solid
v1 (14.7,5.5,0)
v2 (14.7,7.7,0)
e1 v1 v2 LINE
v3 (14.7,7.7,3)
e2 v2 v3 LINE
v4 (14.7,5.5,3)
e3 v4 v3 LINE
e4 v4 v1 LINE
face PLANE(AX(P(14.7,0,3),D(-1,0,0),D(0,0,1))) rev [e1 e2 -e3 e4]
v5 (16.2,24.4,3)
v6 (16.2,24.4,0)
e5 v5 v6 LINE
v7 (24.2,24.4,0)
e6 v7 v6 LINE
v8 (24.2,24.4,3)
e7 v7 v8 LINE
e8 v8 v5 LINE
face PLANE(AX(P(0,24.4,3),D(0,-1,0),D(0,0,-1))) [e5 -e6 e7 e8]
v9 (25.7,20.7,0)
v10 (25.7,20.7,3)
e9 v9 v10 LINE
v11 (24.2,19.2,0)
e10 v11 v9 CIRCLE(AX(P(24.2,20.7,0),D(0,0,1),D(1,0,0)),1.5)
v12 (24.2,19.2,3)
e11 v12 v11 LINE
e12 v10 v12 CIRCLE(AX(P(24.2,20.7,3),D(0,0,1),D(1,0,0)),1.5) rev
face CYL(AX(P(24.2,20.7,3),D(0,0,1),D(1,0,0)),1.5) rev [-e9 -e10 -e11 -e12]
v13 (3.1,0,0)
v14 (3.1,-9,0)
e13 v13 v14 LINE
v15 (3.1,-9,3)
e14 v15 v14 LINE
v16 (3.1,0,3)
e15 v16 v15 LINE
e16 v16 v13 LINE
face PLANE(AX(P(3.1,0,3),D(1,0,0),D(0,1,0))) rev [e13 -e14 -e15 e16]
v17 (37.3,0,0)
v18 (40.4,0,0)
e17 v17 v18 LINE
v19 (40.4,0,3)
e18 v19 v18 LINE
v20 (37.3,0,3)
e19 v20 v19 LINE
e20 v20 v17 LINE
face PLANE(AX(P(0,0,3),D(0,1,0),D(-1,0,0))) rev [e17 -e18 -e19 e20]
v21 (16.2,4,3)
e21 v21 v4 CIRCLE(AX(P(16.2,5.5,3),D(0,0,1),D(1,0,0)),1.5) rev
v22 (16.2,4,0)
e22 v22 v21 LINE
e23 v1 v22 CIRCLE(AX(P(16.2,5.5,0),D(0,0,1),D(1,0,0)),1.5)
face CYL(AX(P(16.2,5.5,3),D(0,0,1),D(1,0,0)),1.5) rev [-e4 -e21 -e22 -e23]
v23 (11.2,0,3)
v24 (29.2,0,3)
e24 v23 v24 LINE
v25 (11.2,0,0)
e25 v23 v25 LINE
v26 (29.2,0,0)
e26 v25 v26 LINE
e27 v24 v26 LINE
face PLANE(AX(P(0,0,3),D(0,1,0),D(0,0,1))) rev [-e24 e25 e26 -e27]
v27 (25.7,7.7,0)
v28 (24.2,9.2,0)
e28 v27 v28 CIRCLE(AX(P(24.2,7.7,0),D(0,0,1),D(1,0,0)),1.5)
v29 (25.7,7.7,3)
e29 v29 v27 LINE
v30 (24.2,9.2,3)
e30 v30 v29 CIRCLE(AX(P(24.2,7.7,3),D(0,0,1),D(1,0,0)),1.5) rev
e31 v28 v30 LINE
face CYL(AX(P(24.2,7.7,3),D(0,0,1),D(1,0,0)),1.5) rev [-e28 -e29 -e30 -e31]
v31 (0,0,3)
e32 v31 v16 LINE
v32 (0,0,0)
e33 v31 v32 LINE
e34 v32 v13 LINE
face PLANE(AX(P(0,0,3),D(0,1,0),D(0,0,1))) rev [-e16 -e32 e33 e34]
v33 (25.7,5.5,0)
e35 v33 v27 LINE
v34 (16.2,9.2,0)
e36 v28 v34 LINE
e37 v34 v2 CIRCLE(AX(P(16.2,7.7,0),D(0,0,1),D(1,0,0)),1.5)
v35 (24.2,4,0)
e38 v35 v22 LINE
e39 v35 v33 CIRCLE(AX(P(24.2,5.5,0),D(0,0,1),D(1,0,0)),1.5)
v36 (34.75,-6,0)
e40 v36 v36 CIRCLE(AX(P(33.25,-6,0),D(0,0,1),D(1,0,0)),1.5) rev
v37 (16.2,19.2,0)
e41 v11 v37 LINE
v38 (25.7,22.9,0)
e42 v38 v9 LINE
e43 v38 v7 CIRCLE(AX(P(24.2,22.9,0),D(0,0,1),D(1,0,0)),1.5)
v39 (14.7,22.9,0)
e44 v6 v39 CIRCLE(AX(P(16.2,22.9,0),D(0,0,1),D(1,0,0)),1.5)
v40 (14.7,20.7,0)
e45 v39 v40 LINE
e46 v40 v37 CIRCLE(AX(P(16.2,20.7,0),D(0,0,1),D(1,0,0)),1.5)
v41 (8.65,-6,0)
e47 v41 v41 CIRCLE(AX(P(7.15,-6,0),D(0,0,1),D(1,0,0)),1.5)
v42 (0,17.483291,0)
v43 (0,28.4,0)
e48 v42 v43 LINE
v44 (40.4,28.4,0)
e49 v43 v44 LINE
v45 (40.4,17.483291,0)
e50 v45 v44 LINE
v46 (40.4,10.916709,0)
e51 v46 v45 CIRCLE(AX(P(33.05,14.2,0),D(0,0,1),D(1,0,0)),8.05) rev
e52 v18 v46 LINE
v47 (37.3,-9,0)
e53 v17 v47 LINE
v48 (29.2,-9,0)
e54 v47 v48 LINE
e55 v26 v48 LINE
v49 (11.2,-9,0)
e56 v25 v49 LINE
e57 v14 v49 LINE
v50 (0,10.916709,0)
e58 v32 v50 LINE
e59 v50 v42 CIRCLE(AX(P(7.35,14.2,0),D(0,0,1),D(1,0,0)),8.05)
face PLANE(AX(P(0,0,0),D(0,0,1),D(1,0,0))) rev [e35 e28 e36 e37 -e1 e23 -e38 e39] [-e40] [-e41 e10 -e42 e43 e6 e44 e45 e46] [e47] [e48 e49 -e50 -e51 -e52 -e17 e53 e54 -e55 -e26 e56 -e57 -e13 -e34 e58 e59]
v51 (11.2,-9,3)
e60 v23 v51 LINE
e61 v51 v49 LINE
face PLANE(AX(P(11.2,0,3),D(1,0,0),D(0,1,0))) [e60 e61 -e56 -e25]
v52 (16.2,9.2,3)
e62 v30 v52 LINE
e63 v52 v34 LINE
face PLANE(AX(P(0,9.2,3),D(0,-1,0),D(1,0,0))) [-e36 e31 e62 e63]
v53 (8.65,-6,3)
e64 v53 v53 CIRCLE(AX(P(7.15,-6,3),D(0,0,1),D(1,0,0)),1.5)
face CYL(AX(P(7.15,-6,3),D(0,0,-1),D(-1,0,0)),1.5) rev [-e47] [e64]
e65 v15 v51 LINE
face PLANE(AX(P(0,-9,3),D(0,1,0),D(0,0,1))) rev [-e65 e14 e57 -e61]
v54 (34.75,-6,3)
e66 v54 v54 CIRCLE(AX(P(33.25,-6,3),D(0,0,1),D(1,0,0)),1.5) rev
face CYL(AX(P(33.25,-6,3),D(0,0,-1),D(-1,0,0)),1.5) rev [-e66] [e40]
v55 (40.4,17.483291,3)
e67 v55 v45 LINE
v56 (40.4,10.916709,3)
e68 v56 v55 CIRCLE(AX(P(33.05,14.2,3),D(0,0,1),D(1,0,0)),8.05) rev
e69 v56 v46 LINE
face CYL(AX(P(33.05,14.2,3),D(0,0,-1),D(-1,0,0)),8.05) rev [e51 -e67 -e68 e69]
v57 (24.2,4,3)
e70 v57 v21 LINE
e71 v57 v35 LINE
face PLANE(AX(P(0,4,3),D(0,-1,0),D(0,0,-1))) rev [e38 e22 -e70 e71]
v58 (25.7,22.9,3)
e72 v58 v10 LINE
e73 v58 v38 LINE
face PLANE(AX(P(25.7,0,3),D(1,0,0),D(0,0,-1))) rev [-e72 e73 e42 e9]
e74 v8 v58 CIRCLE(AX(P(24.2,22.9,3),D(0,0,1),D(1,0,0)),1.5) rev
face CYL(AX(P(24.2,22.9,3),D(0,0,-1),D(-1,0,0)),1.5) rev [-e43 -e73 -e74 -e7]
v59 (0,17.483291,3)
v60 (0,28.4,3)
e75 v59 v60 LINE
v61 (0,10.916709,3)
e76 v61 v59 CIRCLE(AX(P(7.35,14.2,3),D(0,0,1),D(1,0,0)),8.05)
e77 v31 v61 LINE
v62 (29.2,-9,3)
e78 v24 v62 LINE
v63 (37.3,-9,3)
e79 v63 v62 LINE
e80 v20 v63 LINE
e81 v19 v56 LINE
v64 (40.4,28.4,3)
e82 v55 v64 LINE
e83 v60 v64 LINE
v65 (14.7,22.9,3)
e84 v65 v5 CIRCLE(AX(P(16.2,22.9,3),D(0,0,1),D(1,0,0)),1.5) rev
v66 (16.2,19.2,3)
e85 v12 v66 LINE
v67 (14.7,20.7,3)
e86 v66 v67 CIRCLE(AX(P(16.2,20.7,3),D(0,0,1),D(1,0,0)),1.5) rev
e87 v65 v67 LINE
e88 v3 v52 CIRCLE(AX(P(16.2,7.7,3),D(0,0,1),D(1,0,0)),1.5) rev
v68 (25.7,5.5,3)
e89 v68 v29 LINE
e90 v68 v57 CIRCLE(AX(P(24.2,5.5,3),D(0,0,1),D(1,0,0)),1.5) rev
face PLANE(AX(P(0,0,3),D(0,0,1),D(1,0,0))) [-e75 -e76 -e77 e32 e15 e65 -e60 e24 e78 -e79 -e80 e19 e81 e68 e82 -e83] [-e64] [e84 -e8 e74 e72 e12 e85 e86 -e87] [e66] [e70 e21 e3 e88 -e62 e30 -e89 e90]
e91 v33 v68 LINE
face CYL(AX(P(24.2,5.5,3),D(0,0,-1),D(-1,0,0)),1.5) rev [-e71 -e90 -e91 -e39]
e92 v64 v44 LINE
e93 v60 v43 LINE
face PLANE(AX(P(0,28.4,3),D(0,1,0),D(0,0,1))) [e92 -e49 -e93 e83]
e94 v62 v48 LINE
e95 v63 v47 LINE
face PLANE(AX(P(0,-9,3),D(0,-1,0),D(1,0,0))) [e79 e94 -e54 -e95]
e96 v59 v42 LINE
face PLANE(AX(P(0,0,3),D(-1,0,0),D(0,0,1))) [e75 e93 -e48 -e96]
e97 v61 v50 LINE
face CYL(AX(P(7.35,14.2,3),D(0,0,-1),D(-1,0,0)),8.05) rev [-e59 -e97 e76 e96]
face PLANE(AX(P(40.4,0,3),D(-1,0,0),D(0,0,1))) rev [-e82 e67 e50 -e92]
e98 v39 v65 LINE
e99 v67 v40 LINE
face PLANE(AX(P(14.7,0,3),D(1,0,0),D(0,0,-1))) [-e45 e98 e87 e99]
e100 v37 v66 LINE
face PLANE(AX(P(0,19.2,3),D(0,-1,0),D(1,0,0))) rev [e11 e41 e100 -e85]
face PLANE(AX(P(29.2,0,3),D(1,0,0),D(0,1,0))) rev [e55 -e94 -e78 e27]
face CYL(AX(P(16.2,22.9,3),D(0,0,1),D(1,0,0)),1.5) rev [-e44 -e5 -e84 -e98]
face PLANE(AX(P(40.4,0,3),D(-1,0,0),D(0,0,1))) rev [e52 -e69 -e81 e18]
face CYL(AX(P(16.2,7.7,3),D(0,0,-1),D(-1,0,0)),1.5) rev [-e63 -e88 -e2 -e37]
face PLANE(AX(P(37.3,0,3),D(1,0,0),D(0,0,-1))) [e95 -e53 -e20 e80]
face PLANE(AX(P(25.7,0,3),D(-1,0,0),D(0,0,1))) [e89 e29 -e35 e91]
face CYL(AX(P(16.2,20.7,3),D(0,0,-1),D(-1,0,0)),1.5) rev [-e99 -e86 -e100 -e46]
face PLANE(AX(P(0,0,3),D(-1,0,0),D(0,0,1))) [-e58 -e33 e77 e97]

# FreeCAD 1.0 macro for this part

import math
import FreeCAD as App
import Part
import Sketcher
from FreeCAD import Vector


def edges_at(feature, points):
    """Names of the edges that pass closest to the given points."""
    edges = feature.Shape.Edges
    near = lambda p: min(range(len(edges)), key=lambda i: edges[i].distToShape(Part.Vertex(*p))[0])
    return sorted({f"Edge{near(p) + 1}" for p in points})


def add_polygon(sketch, points):
    """Adds a closed chain of lines whose ends are joined by coincident constraints."""
    first, n = sketch.GeometryCount, len(points)
    for a, b in zip(points, points[1:] + points[:1]):
        sketch.addGeometry(Part.LineSegment(App.Vector(*a, 0), App.Vector(*b, 0)), False)
    for i in range(n):
        sketch.addConstraint(Sketcher.Constraint("Coincident", first + i, 2, first + (i + 1) % n, 1))

doc = App.newDocument("Part")
params = doc.addObject("Spreadsheet::Sheet", "Params")
for row, (alias, value) in enumerate([
    ("sketch1_diameter", "3 mm"),
    ("sketch1_width", "18 mm"),
    ("sketch1_width2", "11 mm"),
    ("sketch1_height", "9 mm"),
    ("sketch1_radius", "8.05 mm"),
    ("pad1_length", "3 mm"),
    ("fillet_radius", "1.5 mm"),
    ("fillet2_radius", "1.5 mm"),
], start=1):
    params.set(f"A{row}", alias)
    params.set(f"B{row}", "=" + value)
    params.setAlias(f"B{row}", alias)

body = doc.addObject("PartDesign::Body", "Body")

sketch1 = body.newObject("Sketcher::SketchObject", "Sketch")
sketch1.AttachmentSupport = (doc.getObject("XY_Plane"), [""])
sketch1.MapMode = "FlatFace"
sketch1.addGeometry(Part.LineSegment(Vector(0, 10.9, 0), Vector(0, 0, 0)), False)
sketch1.addGeometry(Part.LineSegment(Vector(0, 0, 0), Vector(3.1, 0, 0)), False)
sketch1.addGeometry(Part.LineSegment(Vector(3.1, 0, 0), Vector(3.1, -9, 0)), False)
sketch1.addGeometry(Part.LineSegment(Vector(3.1, -9, 0), Vector(11.2, -9, 0)), False)
sketch1.addGeometry(Part.LineSegment(Vector(11.2, -9, 0), Vector(11.2, 0, 0)), False)
sketch1.addGeometry(Part.LineSegment(Vector(11.2, 0, 0), Vector(29.2, 0, 0)), False)
sketch1.addGeometry(Part.LineSegment(Vector(29.2, 0, 0), Vector(29.2, -9, 0)), False)
sketch1.addGeometry(Part.LineSegment(Vector(29.2, -9, 0), Vector(37.3, -9, 0)), False)
sketch1.addGeometry(Part.LineSegment(Vector(37.3, -9, 0), Vector(37.3, 0, 0)), False)
sketch1.addGeometry(Part.LineSegment(Vector(37.3, 0, 0), Vector(40.4, 0, 0)), False)
sketch1.addGeometry(Part.LineSegment(Vector(40.4, 0, 0), Vector(40.4, 10.9, 0)), False)
sketch1.addGeometry(Part.ArcOfCircle(Part.Circle(Vector(33, 14.2, 0), Vector(0, 0, 1), 8.1), math.radians(24), math.radians(336)), False)
sketch1.addGeometry(Part.LineSegment(Vector(40.4, 17.5, 0), Vector(40.4, 28.4, 0)), False)
sketch1.addGeometry(Part.LineSegment(Vector(40.4, 28.4, 0), Vector(0, 28.4, 0)), False)
sketch1.addGeometry(Part.LineSegment(Vector(0, 28.4, 0), Vector(0, 17.5, 0)), False)
sketch1.addGeometry(Part.ArcOfCircle(Part.Circle(Vector(7.3, 14.2, 0), Vector(0, 0, 1), 8.1), math.radians(0), math.radians(156)), False)
sketch1.addGeometry(Part.ArcOfCircle(Part.Circle(Vector(7.3, 14.2, 0), Vector(0, 0, 1), 8.1), math.radians(-156), math.radians(0)), False)
sketch1.addGeometry(Part.Circle(Vector(7.2, -6, 0), Vector(0, 0, 1), 1.5), False)
add_polygon(sketch1, [(25.7, 4), (14.7, 4), (14.7, 9.2), (25.7, 9.2)])
sketch1.addGeometry(Part.Circle(Vector(33.2, -6, 0), Vector(0, 0, 1), 1.5), False)
add_polygon(sketch1, [(25.7, 19.2), (14.7, 19.2), (14.7, 24.4), (25.7, 24.4)])
sketch1.addConstraint(Sketcher.Constraint("Coincident", 0, 2, 1, 1))
sketch1.addConstraint(Sketcher.Constraint("Coincident", 1, 2, 2, 1))
sketch1.addConstraint(Sketcher.Constraint("Coincident", 2, 2, 3, 1))
sketch1.addConstraint(Sketcher.Constraint("Coincident", 3, 2, 4, 1))
sketch1.addConstraint(Sketcher.Constraint("Coincident", 4, 2, 5, 1))
sketch1.addConstraint(Sketcher.Constraint("Coincident", 5, 2, 6, 1))
sketch1.addConstraint(Sketcher.Constraint("Coincident", 6, 2, 7, 1))
sketch1.addConstraint(Sketcher.Constraint("Coincident", 7, 2, 8, 1))
sketch1.addConstraint(Sketcher.Constraint("Coincident", 8, 2, 9, 1))
sketch1.addConstraint(Sketcher.Constraint("Coincident", 9, 2, 10, 1))
sketch1.addConstraint(Sketcher.Constraint("Coincident", 10, 2, 11, 2))
sketch1.addConstraint(Sketcher.Constraint("Coincident", 11, 1, 12, 1))
sketch1.addConstraint(Sketcher.Constraint("Coincident", 12, 2, 13, 1))
sketch1.addConstraint(Sketcher.Constraint("Coincident", 13, 2, 14, 1))
sketch1.addConstraint(Sketcher.Constraint("Coincident", 14, 2, 15, 2))
sketch1.addConstraint(Sketcher.Constraint("Tangent", 15, 1, 16, 2))
sketch1.addConstraint(Sketcher.Constraint("Coincident", 16, 1, 0, 1))
sketch1.addConstraint(Sketcher.Constraint("Vertical", 0))
sketch1.addConstraint(Sketcher.Constraint("Horizontal", 1))
sketch1.addConstraint(Sketcher.Constraint("Vertical", 2))
sketch1.addConstraint(Sketcher.Constraint("Horizontal", 3))
sketch1.addConstraint(Sketcher.Constraint("Vertical", 4))
sketch1.addConstraint(Sketcher.Constraint("Horizontal", 5))
sketch1.addConstraint(Sketcher.Constraint("Vertical", 6))
sketch1.addConstraint(Sketcher.Constraint("Horizontal", 7))
sketch1.addConstraint(Sketcher.Constraint("Vertical", 8))
sketch1.addConstraint(Sketcher.Constraint("Horizontal", 9))
sketch1.addConstraint(Sketcher.Constraint("Vertical", 10))
sketch1.addConstraint(Sketcher.Constraint("Vertical", 12))
sketch1.addConstraint(Sketcher.Constraint("Horizontal", 13))
sketch1.addConstraint(Sketcher.Constraint("Vertical", 14))
sketch1.addConstraint(Sketcher.Constraint("Horizontal", 18))
sketch1.addConstraint(Sketcher.Constraint("Vertical", 19))
sketch1.addConstraint(Sketcher.Constraint("Horizontal", 20))
sketch1.addConstraint(Sketcher.Constraint("Vertical", 21))
sketch1.addConstraint(Sketcher.Constraint("Horizontal", 23))
sketch1.addConstraint(Sketcher.Constraint("Vertical", 24))
sketch1.addConstraint(Sketcher.Constraint("Horizontal", 25))
sketch1.addConstraint(Sketcher.Constraint("Vertical", 26))
sketch1.addConstraint(Sketcher.Constraint("Coincident", 0, 2, -1, 1))
sketch1.addConstraint(Sketcher.Constraint("Equal", 11, 15))
sketch1.addConstraint(Sketcher.Constraint("Equal", 15, 16))
sketch1.addConstraint(Sketcher.Constraint("Equal", 17, 22))
sketch1.addConstraint(Sketcher.Constraint("PointOnObject", 4, 2, -1))
sketch1.addConstraint(Sketcher.Constraint("PointOnObject", 8, 2, -1))
sketch1.addConstraint(Sketcher.Constraint("PointOnObject", 13, 2, -2))
sketch1.addConstraint(Sketcher.Constraint("Horizontal", 11, 3, 15, 3))
sketch1.addConstraint(Sketcher.Constraint("Horizontal", 17, 3, 22, 3))
sketch1.addConstraint(Sketcher.Constraint("Horizontal", 3, 2, 6, 2))
sketch1.addConstraint(Sketcher.Constraint("Horizontal", 11, 1, 14, 2))
sketch1.addConstraint(Sketcher.Constraint("Horizontal", 16, 3, 15, 1))
sketch1.addConstraint(Sketcher.Constraint("Horizontal", 10, 2, 16, 1))
sketch1.addConstraint(Sketcher.Constraint("Vertical", 19, 2, 23, 2))
sketch1.addConstraint(Sketcher.Constraint("Vertical", 21, 2, 25, 2))
sketch1.addConstraint(Sketcher.Constraint("Equal", 3, 7))
sketch1.addConstraint(Sketcher.Constraint("Equal", 1, 9))
sketch1.addConstraint(Sketcher.Constraint("Equal", 10, 12))
sketch1.addConstraint(Sketcher.Constraint("Equal", 21, 24))
sketch1.addConstraint(Sketcher.Constraint("Diameter", 17, 3.0))
sketch1.addConstraint(Sketcher.Constraint("DistanceX", 5, 1, 5, 2, 18.0))
sketch1.addConstraint(Sketcher.Constraint("DistanceX", 18, 2, 18, 1, 11.0))
sketch1.addConstraint(Sketcher.Constraint("DistanceY", 2, 2, 2, 1, 9.0))
sketch1.addConstraint(Sketcher.Constraint("Radius", 11, 8.05))
sketch1.addConstraint(Sketcher.Constraint("DistanceX", 1, 1, 1, 2, 3.1))
sketch1.addConstraint(Sketcher.Constraint("DistanceX", 3, 1, 3, 2, 8.1))
sketch1.addConstraint(Sketcher.Constraint("DistanceY", 19, 1, 19, 2, 5.2))
sketch1.addConstraint(Sketcher.Constraint("DistanceY", 17, 3, -1, 1, 6.0))
sketch1.addConstraint(Sketcher.Constraint("DistanceY", -1, 1, 18, 2, 4.0))
sketch1.addConstraint(Sketcher.Constraint("DistanceY", 19, 2, 15, 1, 5.0))
sketch1.addConstraint(Sketcher.Constraint("DistanceY", 15, 1, 23, 2, 5.0))
sketch1.addConstraint(Sketcher.Constraint("DistanceX", -1, 1, 15, 1, 15.4))
sketch1.addConstraint(Sketcher.Constraint("DistanceX", -1, 1, 18, 2, 14.7))
sketch1.addConstraint(Sketcher.Constraint("DistanceX", 17, 3, 15, 3, 0.2))
sketch1.addConstraint(Sketcher.Constraint("DistanceX", 11, 3, 22, 3, 0.2))
sketch1.setExpression("Constraints[66]", "Params.sketch1_diameter")
sketch1.setExpression("Constraints[67]", "Params.sketch1_width")
sketch1.setExpression("Constraints[68]", "Params.sketch1_width2")
sketch1.setExpression("Constraints[69]", "Params.sketch1_height")
sketch1.setExpression("Constraints[70]", "Params.sketch1_radius")
pad1 = body.newObject("PartDesign::Pad", "Pad")
pad1.Profile = sketch1
pad1.setExpression("Length", "Params.pad1_length")
doc.recompute()

fillet = body.newObject("PartDesign::Fillet", "Fillet")
fillet.Base = (pad1, edges_at(pad1, [
    (14.7, 24.4, 1.5),
    (14.7, 19.2, 1.5),
    (25.7, 19.2, 1.5),
    (25.7, 24.4, 1.5),
]))
fillet.setExpression("Radius", "Params.fillet_radius")
doc.recompute()

fillet2 = body.newObject("PartDesign::Fillet", "Fillet001")
fillet2.Base = (fillet, edges_at(fillet, [
    (25.7, 9.2, 1.5),
    (14.7, 9.2, 1.5),
    (14.7, 4, 1.5),
    (25.7, 4, 1.5),
]))
fillet2.setExpression("Radius", "Params.fillet2_radius")

doc.recompute()
